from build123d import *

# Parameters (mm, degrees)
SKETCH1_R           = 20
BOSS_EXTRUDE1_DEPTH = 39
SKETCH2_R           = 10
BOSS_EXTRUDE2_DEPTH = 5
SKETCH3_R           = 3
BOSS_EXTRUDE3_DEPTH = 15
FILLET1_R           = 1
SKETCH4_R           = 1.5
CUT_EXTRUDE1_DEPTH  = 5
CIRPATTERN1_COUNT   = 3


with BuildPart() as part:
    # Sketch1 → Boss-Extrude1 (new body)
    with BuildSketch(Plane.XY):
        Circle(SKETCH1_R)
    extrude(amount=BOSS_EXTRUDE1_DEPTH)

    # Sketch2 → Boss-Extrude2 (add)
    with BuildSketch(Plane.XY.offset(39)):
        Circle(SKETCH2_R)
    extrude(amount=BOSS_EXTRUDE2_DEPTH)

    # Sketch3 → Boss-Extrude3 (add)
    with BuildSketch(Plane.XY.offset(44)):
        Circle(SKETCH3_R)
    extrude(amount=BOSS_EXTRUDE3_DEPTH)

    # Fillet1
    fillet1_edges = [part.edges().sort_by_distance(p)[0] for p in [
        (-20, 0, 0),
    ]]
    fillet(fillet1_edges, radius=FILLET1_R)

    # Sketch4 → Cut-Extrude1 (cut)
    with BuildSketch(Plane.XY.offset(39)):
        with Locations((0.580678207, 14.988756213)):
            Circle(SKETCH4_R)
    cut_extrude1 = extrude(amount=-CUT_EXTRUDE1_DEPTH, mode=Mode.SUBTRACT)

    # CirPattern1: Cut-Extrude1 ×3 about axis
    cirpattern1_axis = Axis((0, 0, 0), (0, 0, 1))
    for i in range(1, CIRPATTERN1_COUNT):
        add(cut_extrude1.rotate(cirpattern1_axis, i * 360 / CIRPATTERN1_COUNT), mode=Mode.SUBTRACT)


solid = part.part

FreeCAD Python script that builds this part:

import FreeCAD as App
import Part
import Sketcher
Q = App.Units.Quantity


def edges_at(feature, points):
    """Names of the edges that pass closest to the given points."""
    edges = feature.Shape.Edges
    near = lambda p: min(range(len(edges)), key=lambda i: edges[i].distToShape(Part.Vertex(*p))[0])
    return sorted({f"Edge{near(p) + 1}" for p in points})

doc = App.newDocument("Part")
params = doc.addObject("Spreadsheet::Sheet", "Params")
for row, (alias, value) in enumerate([
    ("sketch1_diameter", "40 mm"),
    ("pad1_length", "39 mm"),
    ("sketch2_diameter", "20 mm"),
    ("pad2_length", "5 mm"),
    ("sketch3_diameter", "6 mm"),
    ("pad3_length", "15 mm"),
    ("fillet_radius", "1 mm"),
    ("sketch4_diameter", "3 mm"),
    ("pocket1_length", "5 mm"),
], start=1):
    params.set(f"A{row}", alias)
    params.set(f"B{row}", "=" + value)
    params.setAlias(f"B{row}", alias)

body = doc.addObject("PartDesign::Body", "Body")

sketch1 = doc.addObject("Sketcher::SketchObject", "Sketch")
body.addObject(sketch1)
sketch1.AttachmentSupport = (doc.XY_Plane, [""])
sketch1.MapMode = "FlatFace"
sketch1.addGeometry(Part.Circle(App.Vector(0, 0, 0), App.Vector(0, 0, 1), 20), False)
sketch1.addConstraint(Sketcher.Constraint("Coincident", 0, 3, -1, 1))
sketch1.addConstraint(Sketcher.Constraint("Diameter", 0, Q("40 mm")))
sketch1.setExpression("Constraints[1]", "Params.sketch1_diameter")
pad1 = doc.addObject("PartDesign::Pad", "Pad")
body.addObject(pad1)
pad1.Profile = sketch1
pad1.setExpression("Length", "Params.pad1_length")

sketch2 = doc.addObject("Sketcher::SketchObject", "Sketch001")
body.addObject(sketch2)
sketch2.AttachmentSupport = (doc.XY_Plane, [""])
sketch2.MapMode = "FlatFace"
sketch2.AttachmentOffset = App.Placement(App.Vector(0, 0, 39), App.Rotation())
sketch2.addGeometry(Part.Circle(App.Vector(0, 0, 0), App.Vector(0, 0, 1), 10), False)
sketch2.addConstraint(Sketcher.Constraint("Coincident", 0, 3, -1, 1))
sketch2.addConstraint(Sketcher.Constraint("Diameter", 0, Q("20 mm")))
sketch2.setExpression("Constraints[1]", "Params.sketch2_diameter")
pad2 = doc.addObject("PartDesign::Pad", "Pad001")
body.addObject(pad2)
pad2.Profile = sketch2
pad2.setExpression("Length", "Params.pad2_length")

sketch3 = doc.addObject("Sketcher::SketchObject", "Sketch002")
body.addObject(sketch3)
sketch3.AttachmentSupport = (doc.XY_Plane, [""])
sketch3.MapMode = "FlatFace"
sketch3.AttachmentOffset = App.Placement(App.Vector(0, 0, 44), App.Rotation())
sketch3.addGeometry(Part.Circle(App.Vector(0, 0, 0), App.Vector(0, 0, 1), 3), False)
sketch3.addConstraint(Sketcher.Constraint("Coincident", 0, 3, -1, 1))
sketch3.addConstraint(Sketcher.Constraint("Diameter", 0, Q("6 mm")))
sketch3.setExpression("Constraints[1]", "Params.sketch3_diameter")
pad3 = doc.addObject("PartDesign::Pad", "Pad002")
body.addObject(pad3)
pad3.Profile = sketch3
pad3.setExpression("Length", "Params.pad3_length")
doc.recompute()

fillet = doc.addObject("PartDesign::Fillet", "Fillet")
body.addObject(fillet)
fillet.Base = (pad3, edges_at(pad3, [(-20, 0, 0)]))
fillet.setExpression("Radius", "Params.fillet_radius")

sketch4 = doc.addObject("Sketcher::SketchObject", "Sketch003")
body.addObject(sketch4)
sketch4.AttachmentSupport = (doc.XY_Plane, [""])
sketch4.MapMode = "FlatFace"
sketch4.AttachmentOffset = App.Placement(App.Vector(0, 0, 39), App.Rotation())
sketch4.addGeometry(Part.Circle(App.Vector(0.6, 15, 0), App.Vector(0, 0, 1), 1.5), False)
sketch4.addConstraint(Sketcher.Constraint("Diameter", 0, Q("3 mm")))
sketch4.addConstraint(Sketcher.Constraint("DistanceX", -1, 1, 0, 3, Q("0.580678 mm")))
sketch4.addConstraint(Sketcher.Constraint("DistanceY", -1, 1, 0, 3, Q("14.988756 mm")))
sketch4.setExpression("Constraints[0]", "Params.sketch4_diameter")
pocket1 = doc.addObject("PartDesign::Pocket", "Pocket")
body.addObject(pocket1)
pocket1.Profile = sketch4
pocket1.setExpression("Length", "Params.pocket1_length")
doc.recompute()

polarpattern = doc.addObject("PartDesign::PolarPattern", "PolarPattern")
body.addObject(polarpattern)
polarpattern.Originals = [pocket1]
polarpattern.Axis = (doc.Z_Axis, [""])
polarpattern.Angle = 360
polarpattern.Occurrences = 3
body.Tip = polarpattern

doc.recompute()
